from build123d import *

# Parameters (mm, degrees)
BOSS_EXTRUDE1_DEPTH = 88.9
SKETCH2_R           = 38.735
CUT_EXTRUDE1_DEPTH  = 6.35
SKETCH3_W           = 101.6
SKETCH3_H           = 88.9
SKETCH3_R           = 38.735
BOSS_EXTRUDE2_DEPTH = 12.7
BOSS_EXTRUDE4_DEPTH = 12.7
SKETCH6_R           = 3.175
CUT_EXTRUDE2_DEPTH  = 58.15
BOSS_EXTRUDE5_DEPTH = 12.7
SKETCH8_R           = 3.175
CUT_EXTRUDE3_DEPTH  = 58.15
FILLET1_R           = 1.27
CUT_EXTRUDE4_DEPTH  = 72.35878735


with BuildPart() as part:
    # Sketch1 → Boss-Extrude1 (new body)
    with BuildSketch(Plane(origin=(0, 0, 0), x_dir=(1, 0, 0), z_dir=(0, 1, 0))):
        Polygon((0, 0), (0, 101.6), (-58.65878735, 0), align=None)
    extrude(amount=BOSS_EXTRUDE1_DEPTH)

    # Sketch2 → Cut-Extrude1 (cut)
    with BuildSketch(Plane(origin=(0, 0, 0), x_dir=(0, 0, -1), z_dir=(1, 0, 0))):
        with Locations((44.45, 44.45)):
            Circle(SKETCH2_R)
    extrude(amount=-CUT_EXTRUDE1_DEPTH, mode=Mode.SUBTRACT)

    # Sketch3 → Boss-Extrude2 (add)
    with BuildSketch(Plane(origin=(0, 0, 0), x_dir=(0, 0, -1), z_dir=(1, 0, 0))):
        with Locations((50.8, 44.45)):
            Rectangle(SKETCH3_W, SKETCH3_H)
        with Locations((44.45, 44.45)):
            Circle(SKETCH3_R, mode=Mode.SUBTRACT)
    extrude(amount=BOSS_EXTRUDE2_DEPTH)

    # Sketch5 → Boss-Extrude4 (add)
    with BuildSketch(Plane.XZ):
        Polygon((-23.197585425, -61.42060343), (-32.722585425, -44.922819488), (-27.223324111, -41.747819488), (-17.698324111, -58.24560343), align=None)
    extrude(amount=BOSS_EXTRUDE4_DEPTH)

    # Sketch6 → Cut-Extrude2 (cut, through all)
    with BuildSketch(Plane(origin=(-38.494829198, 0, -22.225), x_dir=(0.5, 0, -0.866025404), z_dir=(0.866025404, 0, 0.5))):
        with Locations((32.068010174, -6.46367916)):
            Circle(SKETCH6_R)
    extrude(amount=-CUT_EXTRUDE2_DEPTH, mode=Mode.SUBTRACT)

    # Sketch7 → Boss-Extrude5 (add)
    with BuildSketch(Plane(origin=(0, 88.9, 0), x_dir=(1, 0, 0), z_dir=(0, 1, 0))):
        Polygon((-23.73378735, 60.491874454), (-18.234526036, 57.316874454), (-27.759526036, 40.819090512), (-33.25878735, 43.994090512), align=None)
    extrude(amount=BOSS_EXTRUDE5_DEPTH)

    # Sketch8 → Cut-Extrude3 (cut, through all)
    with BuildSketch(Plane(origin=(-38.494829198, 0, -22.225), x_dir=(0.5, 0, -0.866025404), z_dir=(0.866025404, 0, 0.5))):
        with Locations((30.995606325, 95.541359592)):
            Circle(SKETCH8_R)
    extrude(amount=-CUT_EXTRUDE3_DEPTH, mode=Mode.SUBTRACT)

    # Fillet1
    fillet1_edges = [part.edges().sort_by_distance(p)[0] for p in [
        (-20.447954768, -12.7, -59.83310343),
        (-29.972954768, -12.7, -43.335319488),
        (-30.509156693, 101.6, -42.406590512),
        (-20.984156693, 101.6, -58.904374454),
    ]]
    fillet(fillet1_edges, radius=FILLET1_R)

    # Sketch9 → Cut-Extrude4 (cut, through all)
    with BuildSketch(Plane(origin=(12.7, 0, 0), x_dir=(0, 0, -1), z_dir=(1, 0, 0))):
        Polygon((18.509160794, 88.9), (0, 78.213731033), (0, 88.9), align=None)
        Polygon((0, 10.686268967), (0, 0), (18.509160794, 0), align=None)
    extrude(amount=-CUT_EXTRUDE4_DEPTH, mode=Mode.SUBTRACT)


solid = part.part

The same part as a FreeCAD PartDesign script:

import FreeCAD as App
import Part
import Sketcher
Q = App.Units.Quantity


def edges_at(feature, points):
    """Names of the edges that pass closest to the given points."""
    edges = feature.Shape.Edges
    near = lambda p: min(range(len(edges)), key=lambda i: edges[i].distToShape(Part.Vertex(*p))[0])
    return sorted({f"Edge{near(p) + 1}" for p in points})


def add_polygon(sketch, points):
    """Adds a closed chain of lines whose ends are joined by coincident constraints."""
    first, n = sketch.GeometryCount, len(points)
    for a, b in zip(points, points[1:] + points[:1]):
        sketch.addGeometry(Part.LineSegment(App.Vector(*a, 0), App.Vector(*b, 0)), False)
    for i in range(n):
        sketch.addConstraint(Sketcher.Constraint("Coincident", first + i, 2, first + (i + 1) % n, 1))

doc = App.newDocument("Part")
body = doc.addObject("PartDesign::Body", "Body")

# Sketch on XZ plane
sketch1 = body.newObject("Sketcher::SketchObject", "Sketch")
sketch1.AttachmentSupport = (doc.getObject("XZ_Plane"), [""])
sketch1.MapMode = "FlatFace"
add_polygon(sketch1, [(0, 0), (0, -101.6), (-58.658787, 0)])  # lines 0-2
sketch1.addConstraint([
    Sketcher.Constraint("Vertical", 0),
    Sketcher.Constraint("Horizontal", 2),
    Sketcher.Constraint("Coincident", 2, 2, -1, 1),
    Sketcher.Constraint("DistanceY", 0, 2, 0, 1, Q("4 in")),
    Sketcher.Constraint("Angle", 1, Q("120 deg")),
])
pad1 = body.newObject("PartDesign::Pad", "Pad")
pad1.Profile = sketch1
pad1.Length = Q("3.5 in")
pad1.Reversed = True

# Sketch on YZ plane
sketch2 = body.newObject("Sketcher::SketchObject", "Sketch001")
sketch2.AttachmentSupport = (doc.getObject("YZ_Plane"), [""])
sketch2.MapMode = "FlatFace"
sketch2.addGeometry(Part.Circle(App.Vector(44.45, -44.45, 0), App.Vector(0, 0, 1), 38.735), False)
sketch2.addConstraint([
    Sketcher.Constraint("Diameter", 0, Q("3.05 in")),
    Sketcher.Constraint("DistanceX", -1, 1, 0, 3, Q("1.75 in")),
    Sketcher.Constraint("DistanceY", 0, 3, -1, 1, Q("1.75 in")),
])
pocket1 = body.newObject("PartDesign::Pocket", "Pocket")
pocket1.Profile = sketch2
pocket1.Length = Q("0.25 in")

# Sketch on YZ plane
sketch3 = body.newObject("Sketcher::SketchObject", "Sketch002")
sketch3.AttachmentSupport = (doc.getObject("YZ_Plane"), [""])
sketch3.MapMode = "FlatFace"
add_polygon(sketch3, [(88.9, 0), (0, 0), (0, -101.6), (88.9, -101.6)])  # lines 0-3
sketch3.addGeometry(Part.Circle(App.Vector(44.45, -44.45, 0), App.Vector(0, 0, 1), 38.735), False)  # 4
sketch3.addConstraint([
    Sketcher.Constraint("Horizontal", 0),
    Sketcher.Constraint("Vertical", 1),
    Sketcher.Constraint("Horizontal", 2),
    Sketcher.Constraint("Vertical", 3),
    Sketcher.Constraint("Coincident", 0, 2, -1, 1),
    Sketcher.Constraint("Diameter", 4, Q("3.05 in")),
    Sketcher.Constraint("DistanceY", 1, 2, 1, 1, Q("4 in")),
    Sketcher.Constraint("DistanceX", 0, 2, 0, 1, Q("3.5 in")),
    Sketcher.Constraint("DistanceX", -1, 1, 4, 3, Q("1.75 in")),
    Sketcher.Constraint("DistanceY", 4, 3, -1, 1, Q("1.75 in")),
])
pad2 = body.newObject("PartDesign::Pad", "Pad001")
pad2.Profile = sketch3
pad2.Length = Q("0.5 in")

# Sketch on XZ plane
sketch4 = body.newObject("Sketcher::SketchObject", "Sketch003")
sketch4.AttachmentSupport = (doc.getObject("XZ_Plane"), [""])
sketch4.MapMode = "FlatFace"
add_polygon(sketch4, [(-32.722585, -44.922819), (-23.197585, -61.420603), (-17.698324, -58.245603), (-27.223324, -41.747819)])  # lines 0-3
sketch4.addConstraint([
    Sketcher.Constraint("Perpendicular", 0, 1),
    Sketcher.Constraint("Perpendicular", 1, 2),
    Sketcher.Constraint("Perpendicular", 2, 3),
    Sketcher.Constraint("Angle", 0, Q("-60 deg")),
    Sketcher.Constraint("Distance", 0, Q("0.75 in")),
    Sketcher.Constraint("Distance", 1, Q("0.25 in")),
    Sketcher.Constraint("DistanceY", 2, 2, -1, 1, Q("41.747819 mm")),
    Sketcher.Constraint("DistanceX", 0, 2, -1, 1, Q("23.197585 mm")),
])
pad3 = body.newObject("PartDesign::Pad", "Pad002")
pad3.Profile = sketch4
pad3.Length = Q("0.5 in")

# Sketch on an angled plane
sketch5 = body.newObject("Sketcher::SketchObject", "Sketch004")
sketch5.Placement = App.Placement(App.Vector(-38.494829, 0, -22.225), App.Rotation(App.Vector(0.5, 0, -0.866025404), App.Vector(0, 1, 0), App.Vector(0.866025404, 0, 0.5), "ZXY"))
sketch5.addGeometry(Part.Circle(App.Vector(32.06801, -6.463679, 0), App.Vector(0, 0, 1), 3.175), False)
sketch5.addConstraint([
    Sketcher.Constraint("Diameter", 0, Q("0.25 in")),
    Sketcher.Constraint("DistanceX", -1, 1, 0, 3, Q("32.06801 mm")),
    Sketcher.Constraint("DistanceY", 0, 3, -1, 1, Q("6.463679 mm")),
])
pocket2 = body.newObject("PartDesign::Pocket", "Pocket001")
pocket2.Profile = sketch5
pocket2.Type = "ThroughAll"

# Sketch on XZ plane
sketch6 = body.newObject("Sketcher::SketchObject", "Sketch005")
sketch6.AttachmentSupport = (doc.getObject("XZ_Plane"), [""])
sketch6.MapMode = "FlatFace"
sketch6.AttachmentOffset = App.Placement(App.Vector(0, 0, -3.5 * 25.4), App.Rotation())
add_polygon(sketch6, [(-18.234526, -57.316874), (-23.733787, -60.491874), (-33.258787, -43.994091), (-27.759526, -40.819091)])  # lines 0-3
sketch6.addConstraint([
    Sketcher.Constraint("Perpendicular", 0, 1),
    Sketcher.Constraint("Perpendicular", 1, 2),
    Sketcher.Constraint("Perpendicular", 2, 3),
    Sketcher.Constraint("Angle", 0, Q("-150 deg")),
    Sketcher.Constraint("Distance", 0, Q("0.25 in")),
    Sketcher.Constraint("Distance", 1, Q("0.75 in")),
    Sketcher.Constraint("DistanceY", 1, 2, -1, 1, Q("43.994091 mm")),
    Sketcher.Constraint("DistanceX", 0, 2, -1, 1, Q("23.733787 mm")),
])
pad4 = body.newObject("PartDesign::Pad", "Pad003")
pad4.Profile = sketch6
pad4.Length = Q("0.5 in")
pad4.Reversed = True

# Sketch on an angled plane
sketch7 = body.newObject("Sketcher::SketchObject", "Sketch006")
sketch7.Placement = App.Placement(App.Vector(-38.494829, 0, -22.225), App.Rotation(App.Vector(0.5, 0, -0.866025404), App.Vector(0, 1, 0), App.Vector(0.866025404, 0, 0.5), "ZXY"))
sketch7.addGeometry(Part.Circle(App.Vector(30.995606, 95.54136, 0), App.Vector(0, 0, 1), 3.175), False)
sketch7.addConstraint([
    Sketcher.Constraint("Diameter", 0, Q("0.25 in")),
    Sketcher.Constraint("DistanceY", -1, 1, 0, 3, Q("95.54136 mm")),
    Sketcher.Constraint("DistanceX", -1, 1, 0, 3, Q("30.995606 mm")),
])
pocket3 = body.newObject("PartDesign::Pocket", "Pocket002")
pocket3.Profile = sketch7
pocket3.Type = "ThroughAll"
doc.recompute()

fillet = body.newObject("PartDesign::Fillet", "Fillet")
fillet.Base = (pocket3, edges_at(pocket3, [
    (-20.448, -12.7, -59.833),
    (-29.973, -12.7, -43.335),
    (-30.509, 101.6, -42.407),
    (-20.984, 101.6, -58.904),
]))
fillet.Radius = Q("0.05 in")

# Sketch on YZ plane
sketch8 = body.newObject("Sketcher::SketchObject", "Sketch007")
sketch8.AttachmentSupport = (doc.getObject("YZ_Plane"), [""])
sketch8.MapMode = "FlatFace"
sketch8.AttachmentOffset = App.Placement(App.Vector(0, 0, 0.5 * 25.4), App.Rotation())
add_polygon(sketch8, [(78.213731, 0), (88.9, -18.509161), (88.9, 0)])  # lines 0-2
add_polygon(sketch8, [(10.686269, 0), (0, 0), (0, -18.509161)])  # lines 3-5
sketch8.addConstraint([
    Sketcher.Constraint("Vertical", 1),
    Sketcher.Constraint("Horizontal", 2),
    Sketcher.Constraint("Horizontal", 3),
    Sketcher.Constraint("Vertical", 4),
    Sketcher.Constraint("Coincident", 3, 2, -1, 1),
    Sketcher.Constraint("PointOnObject", 1, 2, -1),
    Sketcher.Constraint("Horizontal", 0, 2, 4, 2),
    Sketcher.Constraint("Equal", 2, 3),
    Sketcher.Constraint("Angle", 0, Q("-60 deg")),
    Sketcher.Constraint("DistanceX", -1, 1, 0, 2, Q("3.5 in")),
    Sketcher.Constraint("DistanceX", 2, 2, 2, 1, Q("10.686269 mm")),
])
pocket4 = body.newObject("PartDesign::Pocket", "Pocket003")
pocket4.Profile = sketch8
pocket4.Type = "ThroughAll"

doc.recompute()
